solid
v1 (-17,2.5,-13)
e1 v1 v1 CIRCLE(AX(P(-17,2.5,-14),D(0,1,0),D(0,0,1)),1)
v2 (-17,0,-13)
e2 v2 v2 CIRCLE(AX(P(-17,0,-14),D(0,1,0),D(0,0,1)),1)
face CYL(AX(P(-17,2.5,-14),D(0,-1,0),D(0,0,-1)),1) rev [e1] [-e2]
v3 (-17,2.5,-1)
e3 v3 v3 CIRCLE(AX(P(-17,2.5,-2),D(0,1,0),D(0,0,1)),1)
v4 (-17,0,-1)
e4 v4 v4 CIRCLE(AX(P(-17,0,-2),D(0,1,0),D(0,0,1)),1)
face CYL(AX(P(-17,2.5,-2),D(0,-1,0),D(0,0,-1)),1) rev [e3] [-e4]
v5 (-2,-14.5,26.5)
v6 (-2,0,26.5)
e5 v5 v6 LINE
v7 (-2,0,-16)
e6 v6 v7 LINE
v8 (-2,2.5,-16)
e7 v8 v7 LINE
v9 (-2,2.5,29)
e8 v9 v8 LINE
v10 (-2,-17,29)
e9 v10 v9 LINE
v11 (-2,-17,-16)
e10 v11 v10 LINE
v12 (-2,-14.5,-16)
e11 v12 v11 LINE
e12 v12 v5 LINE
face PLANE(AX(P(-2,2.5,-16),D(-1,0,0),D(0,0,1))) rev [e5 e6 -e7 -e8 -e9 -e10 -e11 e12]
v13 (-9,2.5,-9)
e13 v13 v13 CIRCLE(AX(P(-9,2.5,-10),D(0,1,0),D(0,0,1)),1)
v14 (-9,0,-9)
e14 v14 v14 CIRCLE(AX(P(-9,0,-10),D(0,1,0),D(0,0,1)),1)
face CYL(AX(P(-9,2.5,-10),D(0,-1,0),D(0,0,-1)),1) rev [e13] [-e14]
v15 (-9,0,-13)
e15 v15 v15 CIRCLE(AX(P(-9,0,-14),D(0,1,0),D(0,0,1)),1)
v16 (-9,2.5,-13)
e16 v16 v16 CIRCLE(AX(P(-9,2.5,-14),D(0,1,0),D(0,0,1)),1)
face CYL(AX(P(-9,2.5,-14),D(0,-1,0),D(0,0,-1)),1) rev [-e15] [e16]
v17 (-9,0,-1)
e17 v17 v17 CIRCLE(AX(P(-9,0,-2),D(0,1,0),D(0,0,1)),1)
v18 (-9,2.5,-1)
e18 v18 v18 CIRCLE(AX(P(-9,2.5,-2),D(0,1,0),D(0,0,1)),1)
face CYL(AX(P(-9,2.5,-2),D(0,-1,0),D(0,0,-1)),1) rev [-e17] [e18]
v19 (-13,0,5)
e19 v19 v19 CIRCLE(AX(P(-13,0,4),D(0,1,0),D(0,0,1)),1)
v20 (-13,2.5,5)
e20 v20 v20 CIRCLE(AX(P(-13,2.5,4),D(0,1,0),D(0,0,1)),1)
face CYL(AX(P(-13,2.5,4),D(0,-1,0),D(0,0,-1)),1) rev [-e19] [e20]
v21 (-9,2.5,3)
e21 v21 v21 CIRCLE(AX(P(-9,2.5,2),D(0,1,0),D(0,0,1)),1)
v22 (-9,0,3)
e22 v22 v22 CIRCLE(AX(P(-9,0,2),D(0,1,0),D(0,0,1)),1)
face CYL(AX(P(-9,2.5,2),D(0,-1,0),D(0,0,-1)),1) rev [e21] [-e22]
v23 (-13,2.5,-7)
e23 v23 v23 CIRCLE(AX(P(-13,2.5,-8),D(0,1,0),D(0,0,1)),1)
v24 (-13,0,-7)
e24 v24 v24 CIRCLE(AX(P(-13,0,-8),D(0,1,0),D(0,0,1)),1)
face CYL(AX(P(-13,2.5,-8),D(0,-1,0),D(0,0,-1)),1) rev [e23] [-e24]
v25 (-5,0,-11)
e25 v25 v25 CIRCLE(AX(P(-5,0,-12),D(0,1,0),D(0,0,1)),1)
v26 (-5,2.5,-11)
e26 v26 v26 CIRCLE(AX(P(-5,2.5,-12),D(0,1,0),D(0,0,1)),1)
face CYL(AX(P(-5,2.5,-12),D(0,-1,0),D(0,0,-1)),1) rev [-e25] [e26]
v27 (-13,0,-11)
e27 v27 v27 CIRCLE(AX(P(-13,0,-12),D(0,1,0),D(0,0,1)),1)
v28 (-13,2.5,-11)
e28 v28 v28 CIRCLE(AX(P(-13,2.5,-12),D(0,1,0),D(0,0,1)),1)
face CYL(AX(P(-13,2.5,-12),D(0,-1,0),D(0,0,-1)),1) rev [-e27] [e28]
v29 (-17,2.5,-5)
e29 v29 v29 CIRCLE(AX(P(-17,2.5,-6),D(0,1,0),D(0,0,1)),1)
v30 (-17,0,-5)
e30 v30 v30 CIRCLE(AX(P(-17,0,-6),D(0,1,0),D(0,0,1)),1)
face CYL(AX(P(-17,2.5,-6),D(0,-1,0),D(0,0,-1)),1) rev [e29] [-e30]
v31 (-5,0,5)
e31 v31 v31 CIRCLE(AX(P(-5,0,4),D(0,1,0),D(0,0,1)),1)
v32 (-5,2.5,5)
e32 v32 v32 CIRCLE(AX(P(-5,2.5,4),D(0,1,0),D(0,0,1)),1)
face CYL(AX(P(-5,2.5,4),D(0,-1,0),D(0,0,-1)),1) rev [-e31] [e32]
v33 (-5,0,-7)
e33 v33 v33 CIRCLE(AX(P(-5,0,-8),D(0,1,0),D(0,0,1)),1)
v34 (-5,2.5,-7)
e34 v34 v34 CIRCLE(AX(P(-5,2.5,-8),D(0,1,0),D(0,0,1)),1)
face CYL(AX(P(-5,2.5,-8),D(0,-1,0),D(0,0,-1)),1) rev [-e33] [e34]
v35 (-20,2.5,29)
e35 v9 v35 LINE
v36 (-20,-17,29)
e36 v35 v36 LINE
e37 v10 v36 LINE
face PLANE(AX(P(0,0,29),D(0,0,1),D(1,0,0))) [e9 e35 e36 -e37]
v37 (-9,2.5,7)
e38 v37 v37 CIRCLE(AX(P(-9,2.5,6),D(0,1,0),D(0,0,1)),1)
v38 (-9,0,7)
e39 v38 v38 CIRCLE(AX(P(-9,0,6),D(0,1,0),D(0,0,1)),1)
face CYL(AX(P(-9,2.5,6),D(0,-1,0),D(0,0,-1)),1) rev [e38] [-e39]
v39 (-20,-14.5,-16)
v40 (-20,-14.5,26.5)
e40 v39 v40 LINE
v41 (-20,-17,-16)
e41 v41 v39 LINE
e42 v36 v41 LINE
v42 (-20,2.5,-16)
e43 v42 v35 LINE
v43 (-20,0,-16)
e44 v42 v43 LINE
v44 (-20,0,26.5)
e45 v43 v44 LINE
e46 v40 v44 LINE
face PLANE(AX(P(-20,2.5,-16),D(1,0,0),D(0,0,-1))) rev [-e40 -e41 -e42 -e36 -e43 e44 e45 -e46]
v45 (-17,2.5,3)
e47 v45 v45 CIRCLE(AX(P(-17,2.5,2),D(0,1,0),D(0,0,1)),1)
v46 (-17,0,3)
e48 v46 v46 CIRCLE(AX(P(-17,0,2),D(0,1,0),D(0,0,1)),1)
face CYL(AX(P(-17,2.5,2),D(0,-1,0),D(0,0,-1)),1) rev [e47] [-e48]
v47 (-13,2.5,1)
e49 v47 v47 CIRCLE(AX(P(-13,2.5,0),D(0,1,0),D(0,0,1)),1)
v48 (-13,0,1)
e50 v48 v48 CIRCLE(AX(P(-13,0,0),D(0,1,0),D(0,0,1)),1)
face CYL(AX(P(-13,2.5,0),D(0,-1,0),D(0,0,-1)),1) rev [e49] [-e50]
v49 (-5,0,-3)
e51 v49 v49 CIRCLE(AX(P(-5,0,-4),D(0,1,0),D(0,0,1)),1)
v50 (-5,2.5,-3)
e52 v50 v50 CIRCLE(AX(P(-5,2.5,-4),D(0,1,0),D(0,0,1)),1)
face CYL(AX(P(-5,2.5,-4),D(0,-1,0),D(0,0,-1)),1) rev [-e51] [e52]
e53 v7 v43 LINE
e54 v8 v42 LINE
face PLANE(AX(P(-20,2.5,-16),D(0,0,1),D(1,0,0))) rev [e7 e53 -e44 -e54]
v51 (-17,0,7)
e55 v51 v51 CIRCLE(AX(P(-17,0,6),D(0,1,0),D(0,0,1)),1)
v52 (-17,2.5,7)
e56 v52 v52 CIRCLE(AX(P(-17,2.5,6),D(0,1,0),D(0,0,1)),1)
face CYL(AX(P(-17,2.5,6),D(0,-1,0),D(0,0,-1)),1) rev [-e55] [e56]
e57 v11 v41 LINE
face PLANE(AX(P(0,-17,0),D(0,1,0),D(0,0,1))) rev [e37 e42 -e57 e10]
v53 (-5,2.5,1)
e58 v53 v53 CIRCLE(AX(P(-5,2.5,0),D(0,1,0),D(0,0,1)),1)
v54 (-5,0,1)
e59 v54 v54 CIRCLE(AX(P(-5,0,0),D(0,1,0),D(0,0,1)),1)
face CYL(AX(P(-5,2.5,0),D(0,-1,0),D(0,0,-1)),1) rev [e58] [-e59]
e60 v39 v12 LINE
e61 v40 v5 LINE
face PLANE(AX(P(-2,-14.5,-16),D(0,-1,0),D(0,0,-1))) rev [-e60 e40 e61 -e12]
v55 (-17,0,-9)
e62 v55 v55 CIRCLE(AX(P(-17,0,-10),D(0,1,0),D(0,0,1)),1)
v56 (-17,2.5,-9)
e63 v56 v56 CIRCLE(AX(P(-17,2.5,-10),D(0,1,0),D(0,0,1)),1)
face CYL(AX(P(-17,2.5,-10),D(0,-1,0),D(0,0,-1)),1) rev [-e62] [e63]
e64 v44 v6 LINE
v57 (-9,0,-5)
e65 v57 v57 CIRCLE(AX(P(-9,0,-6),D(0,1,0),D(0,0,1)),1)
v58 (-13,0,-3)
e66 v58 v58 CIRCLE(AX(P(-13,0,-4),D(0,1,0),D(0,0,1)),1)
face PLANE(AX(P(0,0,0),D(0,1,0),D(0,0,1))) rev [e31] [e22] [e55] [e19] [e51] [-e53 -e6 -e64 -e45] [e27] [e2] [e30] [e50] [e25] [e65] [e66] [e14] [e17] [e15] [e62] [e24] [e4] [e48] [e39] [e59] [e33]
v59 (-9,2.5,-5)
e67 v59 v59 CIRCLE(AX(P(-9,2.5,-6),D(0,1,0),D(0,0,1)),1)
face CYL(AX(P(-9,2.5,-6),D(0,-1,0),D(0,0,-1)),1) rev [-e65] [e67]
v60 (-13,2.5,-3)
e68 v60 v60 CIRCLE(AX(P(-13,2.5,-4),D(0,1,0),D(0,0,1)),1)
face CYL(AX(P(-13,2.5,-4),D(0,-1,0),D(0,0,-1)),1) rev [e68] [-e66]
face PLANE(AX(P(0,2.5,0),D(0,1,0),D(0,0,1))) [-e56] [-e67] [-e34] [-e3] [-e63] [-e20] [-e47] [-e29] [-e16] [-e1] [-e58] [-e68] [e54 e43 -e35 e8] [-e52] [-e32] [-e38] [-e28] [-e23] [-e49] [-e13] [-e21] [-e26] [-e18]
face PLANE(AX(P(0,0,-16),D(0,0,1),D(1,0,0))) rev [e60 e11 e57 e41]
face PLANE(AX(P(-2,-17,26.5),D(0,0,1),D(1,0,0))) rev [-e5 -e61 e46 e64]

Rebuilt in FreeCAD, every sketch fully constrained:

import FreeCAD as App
import Part
import Sketcher
Q = App.Units.Quantity

doc = App.newDocument("Part")
body = doc.addObject("PartDesign::Body", "Body")

# Sketch on XZ plane
sketch1 = doc.addObject("Sketcher::SketchObject", "Sketch")
body.addObject(sketch1)
sketch1.AttachmentSupport = (doc.XZ_Plane, [""])
sketch1.MapMode = "FlatFace"
sketch1.addGeometry(Part.LineSegment(App.Vector(-20, -16, 0), App.Vector(-20, 8, 0)), False)
sketch1.addGeometry(Part.LineSegment(App.Vector(-20, 8, 0), App.Vector(-2, 8, 0)), False)
sketch1.addGeometry(Part.LineSegment(App.Vector(-2, 8, 0), App.Vector(-2, -16, 0)), False)
sketch1.addGeometry(Part.LineSegment(App.Vector(-2, -16, 0), App.Vector(-20, -16, 0)), False)
sketch1.addGeometry(Part.Circle(App.Vector(-17, 6, 0), App.Vector(0, 0, 1), 1), False)
sketch1.addGeometry(Part.Circle(App.Vector(-17, 2, 0), App.Vector(0, 0, 1), 1), False)
sketch1.addGeometry(Part.Circle(App.Vector(-13, 4, 0), App.Vector(0, 0, 1), 1), False)
sketch1.addGeometry(Part.Circle(App.Vector(-17, -2, 0), App.Vector(0, 0, 1), 1), False)
sketch1.addGeometry(Part.Circle(App.Vector(-13, 0, 0), App.Vector(0, 0, 1), 1), False)
sketch1.addGeometry(Part.Circle(App.Vector(-9, 6, 0), App.Vector(0, 0, 1), 1), False)
sketch1.addGeometry(Part.Circle(App.Vector(-9, 2, 0), App.Vector(0, 0, 1), 1), False)
sketch1.addGeometry(Part.Circle(App.Vector(-5, 4, 0), App.Vector(0, 0, 1), 1), False)
sketch1.addGeometry(Part.Circle(App.Vector(-9, -2, 0), App.Vector(0, 0, 1), 1), False)
sketch1.addGeometry(Part.Circle(App.Vector(-5, 0, 0), App.Vector(0, 0, 1), 1), False)
sketch1.addGeometry(Part.Circle(App.Vector(-17, -6, 0), App.Vector(0, 0, 1), 1), False)
sketch1.addGeometry(Part.Circle(App.Vector(-13, -4, 0), App.Vector(0, 0, 1), 1), False)
sketch1.addGeometry(Part.Circle(App.Vector(-13, -8, 0), App.Vector(0, 0, 1), 1), False)
sketch1.addGeometry(Part.Circle(App.Vector(-17, -10, 0), App.Vector(0, 0, 1), 1), False)
sketch1.addGeometry(Part.Circle(App.Vector(-17, -14, 0), App.Vector(0, 0, 1), 1), False)
sketch1.addGeometry(Part.Circle(App.Vector(-13, -12, 0), App.Vector(0, 0, 1), 1), False)
sketch1.addGeometry(Part.Circle(App.Vector(-9, -6, 0), App.Vector(0, 0, 1), 1), False)
sketch1.addGeometry(Part.Circle(App.Vector(-5, -4, 0), App.Vector(0, 0, 1), 1), False)
sketch1.addGeometry(Part.Circle(App.Vector(-5, -8, 0), App.Vector(0, 0, 1), 1), False)
sketch1.addGeometry(Part.Circle(App.Vector(-9, -10, 0), App.Vector(0, 0, 1), 1), False)
sketch1.addGeometry(Part.Circle(App.Vector(-9, -14, 0), App.Vector(0, 0, 1), 1), False)
sketch1.addGeometry(Part.Circle(App.Vector(-5, -12, 0), App.Vector(0, 0, 1), 1), False)
sketch1.addConstraint(Sketcher.Constraint("Coincident", 0, 2, 1, 1))
sketch1.addConstraint(Sketcher.Constraint("Coincident", 1, 2, 2, 1))
sketch1.addConstraint(Sketcher.Constraint("Coincident", 2, 2, 3, 1))
sketch1.addConstraint(Sketcher.Constraint("Coincident", 3, 2, 0, 1))
sketch1.addConstraint(Sketcher.Constraint("Vertical", 0))
sketch1.addConstraint(Sketcher.Constraint("Horizontal", 1))
sketch1.addConstraint(Sketcher.Constraint("Vertical", 2))
sketch1.addConstraint(Sketcher.Constraint("Horizontal", 3))
sketch1.addConstraint(Sketcher.Constraint("Equal", 4, 5))
sketch1.addConstraint(Sketcher.Constraint("Equal", 5, 6))
sketch1.addConstraint(Sketcher.Constraint("Equal", 6, 7))
sketch1.addConstraint(Sketcher.Constraint("Equal", 7, 8))
sketch1.addConstraint(Sketcher.Constraint("Equal", 8, 9))
sketch1.addConstraint(Sketcher.Constraint("Equal", 9, 10))
sketch1.addConstraint(Sketcher.Constraint("Equal", 10, 11))
sketch1.addConstraint(Sketcher.Constraint("Equal", 11, 12))
sketch1.addConstraint(Sketcher.Constraint("Equal", 12, 13))
sketch1.addConstraint(Sketcher.Constraint("Equal", 13, 14))
sketch1.addConstraint(Sketcher.Constraint("Equal", 14, 15))
sketch1.addConstraint(Sketcher.Constraint("Equal", 15, 16))
sketch1.addConstraint(Sketcher.Constraint("Equal", 16, 17))
sketch1.addConstraint(Sketcher.Constraint("Equal", 17, 18))
sketch1.addConstraint(Sketcher.Constraint("Equal", 18, 19))
sketch1.addConstraint(Sketcher.Constraint("Equal", 19, 20))
sketch1.addConstraint(Sketcher.Constraint("Equal", 20, 21))
sketch1.addConstraint(Sketcher.Constraint("Equal", 21, 22))
sketch1.addConstraint(Sketcher.Constraint("Equal", 22, 23))
sketch1.addConstraint(Sketcher.Constraint("Equal", 23, 24))
sketch1.addConstraint(Sketcher.Constraint("Equal", 24, 25))
sketch1.addConstraint(Sketcher.Constraint("Symmetric", 5, 3, 7, 3, -1))
sketch1.addConstraint(Sketcher.Constraint("Symmetric", 10, 3, 12, 3, -1))
sketch1.addConstraint(Sketcher.Constraint("Symmetric", 4, 3, 14, 3, -1))
sketch1.addConstraint(Sketcher.Constraint("Symmetric", 6, 3, 15, 3, -1))
sketch1.addConstraint(Sketcher.Constraint("Symmetric", 9, 3, 20, 3, -1))
sketch1.addConstraint(Sketcher.Constraint("Symmetric", 11, 3, 21, 3, -1))
sketch1.addConstraint(Sketcher.Constraint("PointOnObject", 8, 3, -1))
sketch1.addConstraint(Sketcher.Constraint("PointOnObject", 13, 3, -1))
sketch1.addConstraint(Sketcher.Constraint("Horizontal", 4, 3, 9, 3))
sketch1.addConstraint(Sketcher.Constraint("Horizontal", 5, 3, 10, 3))
sketch1.addConstraint(Sketcher.Constraint("Horizontal", 6, 3, 11, 3))
sketch1.addConstraint(Sketcher.Constraint("Horizontal", 16, 3, 22, 3))
sketch1.addConstraint(Sketcher.Constraint("Horizontal", 17, 3, 23, 3))
sketch1.addConstraint(Sketcher.Constraint("Horizontal", 18, 3, 24, 3))
sketch1.addConstraint(Sketcher.Constraint("Horizontal", 19, 3, 25, 3))
sketch1.addConstraint(Sketcher.Constraint("Vertical", 4, 3, 5, 3))
sketch1.addConstraint(Sketcher.Constraint("Vertical", 6, 3, 8, 3))
sketch1.addConstraint(Sketcher.Constraint("Vertical", 9, 3, 10, 3))
sketch1.addConstraint(Sketcher.Constraint("Vertical", 11, 3, 13, 3))
sketch1.addConstraint(Sketcher.Constraint("Vertical", 15, 3, 16, 3))
sketch1.addConstraint(Sketcher.Constraint("Vertical", 14, 3, 17, 3))
sketch1.addConstraint(Sketcher.Constraint("Vertical", 17, 3, 18, 3))
sketch1.addConstraint(Sketcher.Constraint("Vertical", 16, 3, 19, 3))
sketch1.addConstraint(Sketcher.Constraint("Vertical", 21, 3, 22, 3))
sketch1.addConstraint(Sketcher.Constraint("Vertical", 20, 3, 23, 3))
sketch1.addConstraint(Sketcher.Constraint("Vertical", 23, 3, 24, 3))
sketch1.addConstraint(Sketcher.Constraint("Vertical", 22, 3, 25, 3))
sketch1.addConstraint(Sketcher.Constraint("Diameter", 4, Q("2 mm")))
sketch1.addConstraint(Sketcher.Constraint("DistanceX", 1, 1, 1, 2, Q("18 mm")))
sketch1.addConstraint(Sketcher.Constraint("DistanceY", 0, 1, 0, 2, Q("24 mm")))
sketch1.addConstraint(Sketcher.Constraint("DistanceX", 4, 3, -1, 1, Q("17 mm")))
sketch1.addConstraint(Sketcher.Constraint("DistanceY", -1, 1, 4, 3, Q("6 mm")))
sketch1.addConstraint(Sketcher.Constraint("DistanceY", -1, 1, 5, 3, Q("2 mm")))
sketch1.addConstraint(Sketcher.Constraint("DistanceX", 6, 3, -1, 1, Q("13 mm")))
sketch1.addConstraint(Sketcher.Constraint("DistanceY", -1, 1, 6, 3, Q("4 mm")))
sketch1.addConstraint(Sketcher.Constraint("DistanceX", 9, 3, -1, 1, Q("9 mm")))
sketch1.addConstraint(Sketcher.Constraint("DistanceX", 11, 3, -1, 1, Q("5 mm")))
sketch1.addConstraint(Sketcher.Constraint("DistanceY", 16, 3, -1, 1, Q("8 mm")))
sketch1.addConstraint(Sketcher.Constraint("DistanceY", 17, 3, -1, 1, Q("10 mm")))
sketch1.addConstraint(Sketcher.Constraint("DistanceY", 18, 3, -1, 1, Q("14 mm")))
sketch1.addConstraint(Sketcher.Constraint("DistanceY", 19, 3, -1, 1, Q("12 mm")))
sketch1.addConstraint(Sketcher.Constraint("DistanceX", 0, 2, -1, 1, Q("20 mm")))
sketch1.addConstraint(Sketcher.Constraint("DistanceY", -1, 1, 0, 2, Q("8 mm")))
pad1 = doc.addObject("PartDesign::Pad", "Pad")
body.addObject(pad1)
pad1.Profile = sketch1
pad1.Length = 2.5
pad1.Reversed = True

# Sketch on XY plane
sketch2 = doc.addObject("Sketcher::SketchObject", "Sketch001")
body.addObject(sketch2)
sketch2.AttachmentSupport = (doc.XY_Plane, [""])
sketch2.MapMode = "FlatFace"
sketch2.AttachmentOffset = App.Placement(App.Vector(0, 0, 8), App.Rotation())
sketch2.addGeometry(Part.LineSegment(App.Vector(-20, 2.5, 0), App.Vector(-20, 0, 0)), False)
sketch2.addGeometry(Part.LineSegment(App.Vector(-20, 0, 0), App.Vector(-2, 0, 0)), False)
sketch2.addGeometry(Part.LineSegment(App.Vector(-2, 0, 0), App.Vector(-2, 2.5, 0)), False)
sketch2.addGeometry(Part.LineSegment(App.Vector(-2, 2.5, 0), App.Vector(-20, 2.5, 0)), False)
sketch2.addConstraint(Sketcher.Constraint("Coincident", 0, 2, 1, 1))
sketch2.addConstraint(Sketcher.Constraint("Coincident", 1, 2, 2, 1))
sketch2.addConstraint(Sketcher.Constraint("Coincident", 2, 2, 3, 1))
sketch2.addConstraint(Sketcher.Constraint("Coincident", 3, 2, 0, 1))
sketch2.addConstraint(Sketcher.Constraint("Vertical", 0))
sketch2.addConstraint(Sketcher.Constraint("Horizontal", 1))
sketch2.addConstraint(Sketcher.Constraint("Vertical", 2))
sketch2.addConstraint(Sketcher.Constraint("Horizontal", 3))
sketch2.addConstraint(Sketcher.Constraint("PointOnObject", 0, 2, -1))
sketch2.addConstraint(Sketcher.Constraint("DistanceX", 1, 1, 1, 2, Q("18 mm")))
sketch2.addConstraint(Sketcher.Constraint("DistanceY", 0, 2, 0, 1, Q("2.5 mm")))
sketch2.addConstraint(Sketcher.Constraint("DistanceX", 0, 2, -1, 1, Q("20 mm")))
pad2 = doc.addObject("PartDesign::Pad", "Pad001")
body.addObject(pad2)
pad2.Profile = sketch2
pad2.Length = 21

# Sketch on XZ plane
sketch3 = doc.addObject("Sketcher::SketchObject", "Sketch002")
body.addObject(sketch3)
sketch3.AttachmentSupport = (doc.XZ_Plane, [""])
sketch3.MapMode = "FlatFace"
sketch3.addGeometry(Part.LineSegment(App.Vector(-2, 26.5, 0), App.Vector(-2, 29, 0)), False)
sketch3.addGeometry(Part.LineSegment(App.Vector(-2, 29, 0), App.Vector(-20, 29, 0)), False)
sketch3.addGeometry(Part.LineSegment(App.Vector(-20, 29, 0), App.Vector(-20, 26.5, 0)), False)
sketch3.addGeometry(Part.LineSegment(App.Vector(-20, 26.5, 0), App.Vector(-2, 26.5, 0)), False)
sketch3.addConstraint(Sketcher.Constraint("Coincident", 0, 2, 1, 1))
sketch3.addConstraint(Sketcher.Constraint("Coincident", 1, 2, 2, 1))
sketch3.addConstraint(Sketcher.Constraint("Coincident", 2, 2, 3, 1))
sketch3.addConstraint(Sketcher.Constraint("Coincident", 3, 2, 0, 1))
sketch3.addConstraint(Sketcher.Constraint("Vertical", 0))
sketch3.addConstraint(Sketcher.Constraint("Horizontal", 1))
sketch3.addConstraint(Sketcher.Constraint("Vertical", 2))
sketch3.addConstraint(Sketcher.Constraint("Horizontal", 3))
sketch3.addConstraint(Sketcher.Constraint("DistanceX", 1, 2, 1, 1, Q("18 mm")))
sketch3.addConstraint(Sketcher.Constraint("DistanceY", 0, 1, 0, 2, Q("2.5 mm")))
sketch3.addConstraint(Sketcher.Constraint("DistanceX", 0, 2, -1, 1, Q("2 mm")))
sketch3.addConstraint(Sketcher.Constraint("DistanceY", -1, 1, 0, 2, Q("29 mm")))
pad3 = doc.addObject("PartDesign::Pad", "Pad002")
body.addObject(pad3)
pad3.Profile = sketch3
pad3.Length = 17

# Sketch on XY plane
sketch4 = doc.addObject("Sketcher::SketchObject", "Sketch003")
body.addObject(sketch4)
sketch4.AttachmentSupport = (doc.XY_Plane, [""])
sketch4.MapMode = "FlatFace"
sketch4.AttachmentOffset = App.Placement(App.Vector(0, 0, 26.5), App.Rotation())
sketch4.addGeometry(Part.LineSegment(App.Vector(-2, -14.5, 0), App.Vector(-2, -17, 0)), False)
sketch4.addGeometry(Part.LineSegment(App.Vector(-2, -17, 0), App.Vector(-20, -17, 0)), False)
sketch4.addGeometry(Part.LineSegment(App.Vector(-20, -17, 0), App.Vector(-20, -14.5, 0)), False)
sketch4.addGeometry(Part.LineSegment(App.Vector(-20, -14.5, 0), App.Vector(-2, -14.5, 0)), False)
sketch4.addConstraint(Sketcher.Constraint("Coincident", 0, 2, 1, 1))
sketch4.addConstraint(Sketcher.Constraint("Coincident", 1, 2, 2, 1))
sketch4.addConstraint(Sketcher.Constraint("Coincident", 2, 2, 3, 1))
sketch4.addConstraint(Sketcher.Constraint("Coincident", 3, 2, 0, 1))
sketch4.addConstraint(Sketcher.Constraint("Vertical", 0))
sketch4.addConstraint(Sketcher.Constraint("Horizontal", 1))
sketch4.addConstraint(Sketcher.Constraint("Vertical", 2))
sketch4.addConstraint(Sketcher.Constraint("Horizontal", 3))
sketch4.addConstraint(Sketcher.Constraint("DistanceX", 1, 2, 1, 1, Q("18 mm")))
sketch4.addConstraint(Sketcher.Constraint("DistanceY", 0, 2, 0, 1, Q("2.5 mm")))
sketch4.addConstraint(Sketcher.Constraint("DistanceX", 0, 2, -1, 1, Q("2 mm")))
sketch4.addConstraint(Sketcher.Constraint("DistanceY", 0, 2, -1, 1, Q("17 mm")))
pad4 = doc.addObject("PartDesign::Pad", "Pad003")
body.addObject(pad4)
pad4.Profile = sketch4
pad4.Length = 42.5
pad4.Reversed = True

doc.recompute()
